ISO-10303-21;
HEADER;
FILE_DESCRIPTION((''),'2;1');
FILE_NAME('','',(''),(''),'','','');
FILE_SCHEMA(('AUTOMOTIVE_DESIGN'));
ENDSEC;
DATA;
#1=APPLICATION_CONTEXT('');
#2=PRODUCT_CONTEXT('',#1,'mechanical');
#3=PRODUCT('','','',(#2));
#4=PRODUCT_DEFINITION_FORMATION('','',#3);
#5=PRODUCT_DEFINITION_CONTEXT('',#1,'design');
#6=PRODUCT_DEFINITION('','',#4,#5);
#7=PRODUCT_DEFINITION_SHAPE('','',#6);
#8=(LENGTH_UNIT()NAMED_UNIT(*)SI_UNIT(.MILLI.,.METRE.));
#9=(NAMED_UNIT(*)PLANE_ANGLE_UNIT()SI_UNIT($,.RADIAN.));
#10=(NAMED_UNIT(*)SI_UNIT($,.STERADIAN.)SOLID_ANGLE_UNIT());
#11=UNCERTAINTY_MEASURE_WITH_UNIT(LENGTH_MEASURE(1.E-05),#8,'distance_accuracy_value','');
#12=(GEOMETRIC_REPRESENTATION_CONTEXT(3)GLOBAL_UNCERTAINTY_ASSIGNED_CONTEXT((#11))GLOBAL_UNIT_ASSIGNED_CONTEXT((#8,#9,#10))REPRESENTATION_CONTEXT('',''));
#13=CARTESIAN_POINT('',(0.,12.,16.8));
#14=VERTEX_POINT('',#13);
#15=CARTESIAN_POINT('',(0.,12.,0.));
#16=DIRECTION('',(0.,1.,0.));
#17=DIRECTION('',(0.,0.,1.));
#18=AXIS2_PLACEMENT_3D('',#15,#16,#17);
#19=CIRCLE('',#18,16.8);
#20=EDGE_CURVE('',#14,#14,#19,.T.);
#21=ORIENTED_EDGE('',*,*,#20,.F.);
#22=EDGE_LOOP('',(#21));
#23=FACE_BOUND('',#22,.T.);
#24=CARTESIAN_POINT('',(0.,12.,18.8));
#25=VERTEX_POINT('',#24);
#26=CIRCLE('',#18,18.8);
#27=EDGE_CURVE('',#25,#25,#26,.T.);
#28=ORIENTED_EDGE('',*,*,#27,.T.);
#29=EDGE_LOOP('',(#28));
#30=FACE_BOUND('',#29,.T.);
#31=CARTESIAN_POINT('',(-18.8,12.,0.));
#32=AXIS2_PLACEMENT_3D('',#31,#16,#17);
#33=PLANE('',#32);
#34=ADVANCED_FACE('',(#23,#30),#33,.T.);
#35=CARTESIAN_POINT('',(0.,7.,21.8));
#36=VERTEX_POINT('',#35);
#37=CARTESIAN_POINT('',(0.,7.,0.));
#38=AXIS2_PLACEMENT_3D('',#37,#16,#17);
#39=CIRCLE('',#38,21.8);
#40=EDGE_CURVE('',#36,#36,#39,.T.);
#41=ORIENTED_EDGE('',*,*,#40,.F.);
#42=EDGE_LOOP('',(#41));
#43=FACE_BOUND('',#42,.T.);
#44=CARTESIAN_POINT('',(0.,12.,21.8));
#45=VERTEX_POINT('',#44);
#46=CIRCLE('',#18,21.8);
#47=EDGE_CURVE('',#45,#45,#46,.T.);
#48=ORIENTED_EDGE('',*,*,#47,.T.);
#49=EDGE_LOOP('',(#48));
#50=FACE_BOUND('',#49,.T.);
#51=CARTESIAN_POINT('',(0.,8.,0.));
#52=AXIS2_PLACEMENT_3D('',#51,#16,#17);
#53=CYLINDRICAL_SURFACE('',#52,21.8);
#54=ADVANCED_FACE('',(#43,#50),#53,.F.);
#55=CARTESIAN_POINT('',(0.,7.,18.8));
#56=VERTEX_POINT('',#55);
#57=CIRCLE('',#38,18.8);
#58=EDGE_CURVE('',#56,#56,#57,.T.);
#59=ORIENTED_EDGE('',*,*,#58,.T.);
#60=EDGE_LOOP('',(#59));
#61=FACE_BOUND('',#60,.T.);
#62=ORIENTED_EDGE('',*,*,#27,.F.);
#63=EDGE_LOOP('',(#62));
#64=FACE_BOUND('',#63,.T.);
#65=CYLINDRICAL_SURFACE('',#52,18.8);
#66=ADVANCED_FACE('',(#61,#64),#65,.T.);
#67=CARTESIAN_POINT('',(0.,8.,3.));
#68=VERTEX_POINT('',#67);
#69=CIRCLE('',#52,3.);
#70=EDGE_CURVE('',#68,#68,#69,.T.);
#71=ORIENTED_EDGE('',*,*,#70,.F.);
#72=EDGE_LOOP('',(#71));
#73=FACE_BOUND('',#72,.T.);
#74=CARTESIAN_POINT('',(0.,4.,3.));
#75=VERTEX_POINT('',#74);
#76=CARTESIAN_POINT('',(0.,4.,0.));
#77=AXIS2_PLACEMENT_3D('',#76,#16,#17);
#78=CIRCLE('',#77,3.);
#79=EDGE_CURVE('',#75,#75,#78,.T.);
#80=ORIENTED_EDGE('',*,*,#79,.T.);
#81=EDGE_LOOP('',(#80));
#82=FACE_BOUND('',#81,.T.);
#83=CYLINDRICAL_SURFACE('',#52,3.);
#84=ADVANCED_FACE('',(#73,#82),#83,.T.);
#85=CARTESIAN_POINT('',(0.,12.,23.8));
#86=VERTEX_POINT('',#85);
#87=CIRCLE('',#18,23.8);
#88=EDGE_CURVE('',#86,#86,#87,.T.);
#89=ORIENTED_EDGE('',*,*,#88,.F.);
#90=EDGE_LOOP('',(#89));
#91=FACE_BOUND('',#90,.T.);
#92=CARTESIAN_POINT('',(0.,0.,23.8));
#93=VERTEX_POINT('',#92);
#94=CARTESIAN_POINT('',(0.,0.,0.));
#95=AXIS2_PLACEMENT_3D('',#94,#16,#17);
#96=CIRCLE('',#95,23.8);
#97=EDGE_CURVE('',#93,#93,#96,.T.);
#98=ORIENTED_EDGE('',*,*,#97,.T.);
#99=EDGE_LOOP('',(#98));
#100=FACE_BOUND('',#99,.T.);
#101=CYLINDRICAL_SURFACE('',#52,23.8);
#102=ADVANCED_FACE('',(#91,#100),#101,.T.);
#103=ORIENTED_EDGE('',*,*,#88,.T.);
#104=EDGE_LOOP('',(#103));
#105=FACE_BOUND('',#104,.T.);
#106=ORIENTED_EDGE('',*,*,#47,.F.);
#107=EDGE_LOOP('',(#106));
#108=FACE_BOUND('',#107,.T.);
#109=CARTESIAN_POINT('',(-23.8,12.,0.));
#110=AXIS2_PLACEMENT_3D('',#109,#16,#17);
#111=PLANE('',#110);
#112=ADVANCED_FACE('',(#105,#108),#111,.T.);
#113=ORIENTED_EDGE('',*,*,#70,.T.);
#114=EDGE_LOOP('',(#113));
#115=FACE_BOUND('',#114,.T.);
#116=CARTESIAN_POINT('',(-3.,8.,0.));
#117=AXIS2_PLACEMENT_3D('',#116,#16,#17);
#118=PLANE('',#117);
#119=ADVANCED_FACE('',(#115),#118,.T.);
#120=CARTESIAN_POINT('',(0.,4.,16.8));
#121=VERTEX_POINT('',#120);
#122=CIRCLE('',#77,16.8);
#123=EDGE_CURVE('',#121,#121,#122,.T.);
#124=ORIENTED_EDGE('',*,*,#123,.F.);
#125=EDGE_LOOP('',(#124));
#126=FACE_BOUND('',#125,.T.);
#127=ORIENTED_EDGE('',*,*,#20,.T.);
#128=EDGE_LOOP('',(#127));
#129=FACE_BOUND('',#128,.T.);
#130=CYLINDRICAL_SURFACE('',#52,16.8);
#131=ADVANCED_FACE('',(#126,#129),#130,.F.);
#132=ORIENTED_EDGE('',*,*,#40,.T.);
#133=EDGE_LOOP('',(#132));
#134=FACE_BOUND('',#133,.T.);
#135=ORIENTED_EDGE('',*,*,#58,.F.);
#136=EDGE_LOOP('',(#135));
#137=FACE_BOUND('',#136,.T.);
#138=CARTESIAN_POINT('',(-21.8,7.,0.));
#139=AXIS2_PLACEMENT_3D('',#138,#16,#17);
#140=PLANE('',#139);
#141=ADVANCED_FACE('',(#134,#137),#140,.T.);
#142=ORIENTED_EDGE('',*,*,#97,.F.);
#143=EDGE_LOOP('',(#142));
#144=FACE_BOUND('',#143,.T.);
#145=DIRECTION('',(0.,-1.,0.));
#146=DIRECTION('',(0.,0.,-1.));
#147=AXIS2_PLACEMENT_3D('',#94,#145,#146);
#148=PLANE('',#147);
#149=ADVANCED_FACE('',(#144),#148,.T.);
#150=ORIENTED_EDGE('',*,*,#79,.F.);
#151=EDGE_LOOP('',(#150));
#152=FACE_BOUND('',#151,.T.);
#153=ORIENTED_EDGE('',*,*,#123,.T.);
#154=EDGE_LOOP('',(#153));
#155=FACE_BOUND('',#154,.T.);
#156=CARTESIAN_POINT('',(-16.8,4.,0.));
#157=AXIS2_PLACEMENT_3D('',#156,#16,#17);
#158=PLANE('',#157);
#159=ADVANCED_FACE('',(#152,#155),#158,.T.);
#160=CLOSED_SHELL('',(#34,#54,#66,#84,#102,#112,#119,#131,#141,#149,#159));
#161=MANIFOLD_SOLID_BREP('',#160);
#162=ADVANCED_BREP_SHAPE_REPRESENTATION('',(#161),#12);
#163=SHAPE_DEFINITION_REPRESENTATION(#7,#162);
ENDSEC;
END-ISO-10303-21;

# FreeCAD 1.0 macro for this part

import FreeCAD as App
import Part
import Sketcher
Q = App.Units.Quantity

doc = App.newDocument("Part")
params = doc.addObject("Spreadsheet::Sheet", "Params")
for row, (alias, value) in enumerate([
    ("sketch1_width", "3 mm"),
    ("sketch1_width2", "2 mm"),
    ("sketch1_height", "8 mm"),
    ("sketch1_height2", "4 mm"),
    ("sketch1_height3", "5 mm"),
    ("revolution_angle", "360 deg"),
], start=1):
    params.set(f"A{row}", alias)
    params.set(f"B{row}", "=" + value)
    params.setAlias(f"B{row}", alias)

body = doc.addObject("PartDesign::Body", "Body")

# Sketch on XY plane
sketch1 = body.newObject("Sketcher::SketchObject", "Sketch")
sketch1.AttachmentSupport = (doc.getObject("XY_Plane"), [""])
sketch1.MapMode = "FlatFace"
sketch1.addGeometry(Part.LineSegment(App.Vector(-23.8, 0, 0), App.Vector(0, 0, 0)), False)
sketch1.addGeometry(Part.LineSegment(App.Vector(0, 0, 0), App.Vector(0, 8, 0)), False)
sketch1.addGeometry(Part.LineSegment(App.Vector(0, 8, 0), App.Vector(-3, 8, 0)), False)
sketch1.addGeometry(Part.LineSegment(App.Vector(-3, 8, 0), App.Vector(-3, 4, 0)), False)
sketch1.addGeometry(Part.LineSegment(App.Vector(-3, 4, 0), App.Vector(-16.8, 4, 0)), False)
sketch1.addGeometry(Part.LineSegment(App.Vector(-16.8, 4, 0), App.Vector(-16.8, 12, 0)), False)
sketch1.addGeometry(Part.LineSegment(App.Vector(-16.8, 12, 0), App.Vector(-18.8, 12, 0)), False)
sketch1.addGeometry(Part.LineSegment(App.Vector(-18.8, 12, 0), App.Vector(-18.8, 7, 0)), False)
sketch1.addGeometry(Part.LineSegment(App.Vector(-18.8, 7, 0), App.Vector(-21.8, 7, 0)), False)
sketch1.addGeometry(Part.LineSegment(App.Vector(-21.8, 7, 0), App.Vector(-21.8, 12, 0)), False)
sketch1.addGeometry(Part.LineSegment(App.Vector(-21.8, 12, 0), App.Vector(-23.8, 12, 0)), False)
sketch1.addGeometry(Part.LineSegment(App.Vector(-23.8, 12, 0), App.Vector(-23.8, 0, 0)), False)
sketch1.addConstraint(Sketcher.Constraint("Coincident", 0, 2, 1, 1))
sketch1.addConstraint(Sketcher.Constraint("Coincident", 1, 2, 2, 1))
sketch1.addConstraint(Sketcher.Constraint("Coincident", 2, 2, 3, 1))
sketch1.addConstraint(Sketcher.Constraint("Coincident", 3, 2, 4, 1))
sketch1.addConstraint(Sketcher.Constraint("Coincident", 4, 2, 5, 1))
sketch1.addConstraint(Sketcher.Constraint("Coincident", 5, 2, 6, 1))
sketch1.addConstraint(Sketcher.Constraint("Coincident", 6, 2, 7, 1))
sketch1.addConstraint(Sketcher.Constraint("Coincident", 7, 2, 8, 1))
sketch1.addConstraint(Sketcher.Constraint("Coincident", 8, 2, 9, 1))
sketch1.addConstraint(Sketcher.Constraint("Coincident", 9, 2, 10, 1))
sketch1.addConstraint(Sketcher.Constraint("Coincident", 10, 2, 11, 1))
sketch1.addConstraint(Sketcher.Constraint("Coincident", 11, 2, 0, 1))
sketch1.addConstraint(Sketcher.Constraint("Horizontal", 0))
sketch1.addConstraint(Sketcher.Constraint("Vertical", 1))
sketch1.addConstraint(Sketcher.Constraint("Horizontal", 2))
sketch1.addConstraint(Sketcher.Constraint("Vertical", 3))
sketch1.addConstraint(Sketcher.Constraint("Horizontal", 4))
sketch1.addConstraint(Sketcher.Constraint("Vertical", 5))
sketch1.addConstraint(Sketcher.Constraint("Horizontal", 6))
sketch1.addConstraint(Sketcher.Constraint("Vertical", 7))
sketch1.addConstraint(Sketcher.Constraint("Horizontal", 8))
sketch1.addConstraint(Sketcher.Constraint("Vertical", 9))
sketch1.addConstraint(Sketcher.Constraint("Horizontal", 10))
sketch1.addConstraint(Sketcher.Constraint("Vertical", 11))
sketch1.addConstraint(Sketcher.Constraint("Coincident", 0, 2, -1, 1))
sketch1.addConstraint(Sketcher.Constraint("Horizontal", 6, 2, 9, 2))
sketch1.addConstraint(Sketcher.Constraint("Equal", 2, 8))
sketch1.addConstraint(Sketcher.Constraint("Equal", 6, 10))
sketch1.addConstraint(Sketcher.Constraint("Equal", 1, 5))
sketch1.addConstraint(Sketcher.Constraint("DistanceX", 2, 2, 2, 1, Q("3 mm")))
sketch1.addConstraint(Sketcher.Constraint("DistanceX", 6, 2, 6, 1, Q("2 mm")))
sketch1.addConstraint(Sketcher.Constraint("DistanceY", 1, 1, 1, 2, Q("8 mm")))
sketch1.addConstraint(Sketcher.Constraint("DistanceY", 3, 2, 3, 1, Q("4 mm")))
sketch1.addConstraint(Sketcher.Constraint("DistanceY", 7, 2, 7, 1, Q("5 mm")))
sketch1.addConstraint(Sketcher.Constraint("DistanceX", 0, 1, 0, 2, Q("23.8 mm")))
sketch1.setExpression("Constraints[29]", "Params.sketch1_width")
sketch1.setExpression("Constraints[30]", "Params.sketch1_width2")
sketch1.setExpression("Constraints[31]", "Params.sketch1_height")
sketch1.setExpression("Constraints[32]", "Params.sketch1_height2")
sketch1.setExpression("Constraints[33]", "Params.sketch1_height3")
revolution = body.newObject("PartDesign::Revolution", "Revolution")
revolution.Profile = sketch1
revolution.ReferenceAxis = (sketch1, ["V_Axis"])
revolution.setExpression("Angle", "Params.revolution_angle")

doc.recompute()
